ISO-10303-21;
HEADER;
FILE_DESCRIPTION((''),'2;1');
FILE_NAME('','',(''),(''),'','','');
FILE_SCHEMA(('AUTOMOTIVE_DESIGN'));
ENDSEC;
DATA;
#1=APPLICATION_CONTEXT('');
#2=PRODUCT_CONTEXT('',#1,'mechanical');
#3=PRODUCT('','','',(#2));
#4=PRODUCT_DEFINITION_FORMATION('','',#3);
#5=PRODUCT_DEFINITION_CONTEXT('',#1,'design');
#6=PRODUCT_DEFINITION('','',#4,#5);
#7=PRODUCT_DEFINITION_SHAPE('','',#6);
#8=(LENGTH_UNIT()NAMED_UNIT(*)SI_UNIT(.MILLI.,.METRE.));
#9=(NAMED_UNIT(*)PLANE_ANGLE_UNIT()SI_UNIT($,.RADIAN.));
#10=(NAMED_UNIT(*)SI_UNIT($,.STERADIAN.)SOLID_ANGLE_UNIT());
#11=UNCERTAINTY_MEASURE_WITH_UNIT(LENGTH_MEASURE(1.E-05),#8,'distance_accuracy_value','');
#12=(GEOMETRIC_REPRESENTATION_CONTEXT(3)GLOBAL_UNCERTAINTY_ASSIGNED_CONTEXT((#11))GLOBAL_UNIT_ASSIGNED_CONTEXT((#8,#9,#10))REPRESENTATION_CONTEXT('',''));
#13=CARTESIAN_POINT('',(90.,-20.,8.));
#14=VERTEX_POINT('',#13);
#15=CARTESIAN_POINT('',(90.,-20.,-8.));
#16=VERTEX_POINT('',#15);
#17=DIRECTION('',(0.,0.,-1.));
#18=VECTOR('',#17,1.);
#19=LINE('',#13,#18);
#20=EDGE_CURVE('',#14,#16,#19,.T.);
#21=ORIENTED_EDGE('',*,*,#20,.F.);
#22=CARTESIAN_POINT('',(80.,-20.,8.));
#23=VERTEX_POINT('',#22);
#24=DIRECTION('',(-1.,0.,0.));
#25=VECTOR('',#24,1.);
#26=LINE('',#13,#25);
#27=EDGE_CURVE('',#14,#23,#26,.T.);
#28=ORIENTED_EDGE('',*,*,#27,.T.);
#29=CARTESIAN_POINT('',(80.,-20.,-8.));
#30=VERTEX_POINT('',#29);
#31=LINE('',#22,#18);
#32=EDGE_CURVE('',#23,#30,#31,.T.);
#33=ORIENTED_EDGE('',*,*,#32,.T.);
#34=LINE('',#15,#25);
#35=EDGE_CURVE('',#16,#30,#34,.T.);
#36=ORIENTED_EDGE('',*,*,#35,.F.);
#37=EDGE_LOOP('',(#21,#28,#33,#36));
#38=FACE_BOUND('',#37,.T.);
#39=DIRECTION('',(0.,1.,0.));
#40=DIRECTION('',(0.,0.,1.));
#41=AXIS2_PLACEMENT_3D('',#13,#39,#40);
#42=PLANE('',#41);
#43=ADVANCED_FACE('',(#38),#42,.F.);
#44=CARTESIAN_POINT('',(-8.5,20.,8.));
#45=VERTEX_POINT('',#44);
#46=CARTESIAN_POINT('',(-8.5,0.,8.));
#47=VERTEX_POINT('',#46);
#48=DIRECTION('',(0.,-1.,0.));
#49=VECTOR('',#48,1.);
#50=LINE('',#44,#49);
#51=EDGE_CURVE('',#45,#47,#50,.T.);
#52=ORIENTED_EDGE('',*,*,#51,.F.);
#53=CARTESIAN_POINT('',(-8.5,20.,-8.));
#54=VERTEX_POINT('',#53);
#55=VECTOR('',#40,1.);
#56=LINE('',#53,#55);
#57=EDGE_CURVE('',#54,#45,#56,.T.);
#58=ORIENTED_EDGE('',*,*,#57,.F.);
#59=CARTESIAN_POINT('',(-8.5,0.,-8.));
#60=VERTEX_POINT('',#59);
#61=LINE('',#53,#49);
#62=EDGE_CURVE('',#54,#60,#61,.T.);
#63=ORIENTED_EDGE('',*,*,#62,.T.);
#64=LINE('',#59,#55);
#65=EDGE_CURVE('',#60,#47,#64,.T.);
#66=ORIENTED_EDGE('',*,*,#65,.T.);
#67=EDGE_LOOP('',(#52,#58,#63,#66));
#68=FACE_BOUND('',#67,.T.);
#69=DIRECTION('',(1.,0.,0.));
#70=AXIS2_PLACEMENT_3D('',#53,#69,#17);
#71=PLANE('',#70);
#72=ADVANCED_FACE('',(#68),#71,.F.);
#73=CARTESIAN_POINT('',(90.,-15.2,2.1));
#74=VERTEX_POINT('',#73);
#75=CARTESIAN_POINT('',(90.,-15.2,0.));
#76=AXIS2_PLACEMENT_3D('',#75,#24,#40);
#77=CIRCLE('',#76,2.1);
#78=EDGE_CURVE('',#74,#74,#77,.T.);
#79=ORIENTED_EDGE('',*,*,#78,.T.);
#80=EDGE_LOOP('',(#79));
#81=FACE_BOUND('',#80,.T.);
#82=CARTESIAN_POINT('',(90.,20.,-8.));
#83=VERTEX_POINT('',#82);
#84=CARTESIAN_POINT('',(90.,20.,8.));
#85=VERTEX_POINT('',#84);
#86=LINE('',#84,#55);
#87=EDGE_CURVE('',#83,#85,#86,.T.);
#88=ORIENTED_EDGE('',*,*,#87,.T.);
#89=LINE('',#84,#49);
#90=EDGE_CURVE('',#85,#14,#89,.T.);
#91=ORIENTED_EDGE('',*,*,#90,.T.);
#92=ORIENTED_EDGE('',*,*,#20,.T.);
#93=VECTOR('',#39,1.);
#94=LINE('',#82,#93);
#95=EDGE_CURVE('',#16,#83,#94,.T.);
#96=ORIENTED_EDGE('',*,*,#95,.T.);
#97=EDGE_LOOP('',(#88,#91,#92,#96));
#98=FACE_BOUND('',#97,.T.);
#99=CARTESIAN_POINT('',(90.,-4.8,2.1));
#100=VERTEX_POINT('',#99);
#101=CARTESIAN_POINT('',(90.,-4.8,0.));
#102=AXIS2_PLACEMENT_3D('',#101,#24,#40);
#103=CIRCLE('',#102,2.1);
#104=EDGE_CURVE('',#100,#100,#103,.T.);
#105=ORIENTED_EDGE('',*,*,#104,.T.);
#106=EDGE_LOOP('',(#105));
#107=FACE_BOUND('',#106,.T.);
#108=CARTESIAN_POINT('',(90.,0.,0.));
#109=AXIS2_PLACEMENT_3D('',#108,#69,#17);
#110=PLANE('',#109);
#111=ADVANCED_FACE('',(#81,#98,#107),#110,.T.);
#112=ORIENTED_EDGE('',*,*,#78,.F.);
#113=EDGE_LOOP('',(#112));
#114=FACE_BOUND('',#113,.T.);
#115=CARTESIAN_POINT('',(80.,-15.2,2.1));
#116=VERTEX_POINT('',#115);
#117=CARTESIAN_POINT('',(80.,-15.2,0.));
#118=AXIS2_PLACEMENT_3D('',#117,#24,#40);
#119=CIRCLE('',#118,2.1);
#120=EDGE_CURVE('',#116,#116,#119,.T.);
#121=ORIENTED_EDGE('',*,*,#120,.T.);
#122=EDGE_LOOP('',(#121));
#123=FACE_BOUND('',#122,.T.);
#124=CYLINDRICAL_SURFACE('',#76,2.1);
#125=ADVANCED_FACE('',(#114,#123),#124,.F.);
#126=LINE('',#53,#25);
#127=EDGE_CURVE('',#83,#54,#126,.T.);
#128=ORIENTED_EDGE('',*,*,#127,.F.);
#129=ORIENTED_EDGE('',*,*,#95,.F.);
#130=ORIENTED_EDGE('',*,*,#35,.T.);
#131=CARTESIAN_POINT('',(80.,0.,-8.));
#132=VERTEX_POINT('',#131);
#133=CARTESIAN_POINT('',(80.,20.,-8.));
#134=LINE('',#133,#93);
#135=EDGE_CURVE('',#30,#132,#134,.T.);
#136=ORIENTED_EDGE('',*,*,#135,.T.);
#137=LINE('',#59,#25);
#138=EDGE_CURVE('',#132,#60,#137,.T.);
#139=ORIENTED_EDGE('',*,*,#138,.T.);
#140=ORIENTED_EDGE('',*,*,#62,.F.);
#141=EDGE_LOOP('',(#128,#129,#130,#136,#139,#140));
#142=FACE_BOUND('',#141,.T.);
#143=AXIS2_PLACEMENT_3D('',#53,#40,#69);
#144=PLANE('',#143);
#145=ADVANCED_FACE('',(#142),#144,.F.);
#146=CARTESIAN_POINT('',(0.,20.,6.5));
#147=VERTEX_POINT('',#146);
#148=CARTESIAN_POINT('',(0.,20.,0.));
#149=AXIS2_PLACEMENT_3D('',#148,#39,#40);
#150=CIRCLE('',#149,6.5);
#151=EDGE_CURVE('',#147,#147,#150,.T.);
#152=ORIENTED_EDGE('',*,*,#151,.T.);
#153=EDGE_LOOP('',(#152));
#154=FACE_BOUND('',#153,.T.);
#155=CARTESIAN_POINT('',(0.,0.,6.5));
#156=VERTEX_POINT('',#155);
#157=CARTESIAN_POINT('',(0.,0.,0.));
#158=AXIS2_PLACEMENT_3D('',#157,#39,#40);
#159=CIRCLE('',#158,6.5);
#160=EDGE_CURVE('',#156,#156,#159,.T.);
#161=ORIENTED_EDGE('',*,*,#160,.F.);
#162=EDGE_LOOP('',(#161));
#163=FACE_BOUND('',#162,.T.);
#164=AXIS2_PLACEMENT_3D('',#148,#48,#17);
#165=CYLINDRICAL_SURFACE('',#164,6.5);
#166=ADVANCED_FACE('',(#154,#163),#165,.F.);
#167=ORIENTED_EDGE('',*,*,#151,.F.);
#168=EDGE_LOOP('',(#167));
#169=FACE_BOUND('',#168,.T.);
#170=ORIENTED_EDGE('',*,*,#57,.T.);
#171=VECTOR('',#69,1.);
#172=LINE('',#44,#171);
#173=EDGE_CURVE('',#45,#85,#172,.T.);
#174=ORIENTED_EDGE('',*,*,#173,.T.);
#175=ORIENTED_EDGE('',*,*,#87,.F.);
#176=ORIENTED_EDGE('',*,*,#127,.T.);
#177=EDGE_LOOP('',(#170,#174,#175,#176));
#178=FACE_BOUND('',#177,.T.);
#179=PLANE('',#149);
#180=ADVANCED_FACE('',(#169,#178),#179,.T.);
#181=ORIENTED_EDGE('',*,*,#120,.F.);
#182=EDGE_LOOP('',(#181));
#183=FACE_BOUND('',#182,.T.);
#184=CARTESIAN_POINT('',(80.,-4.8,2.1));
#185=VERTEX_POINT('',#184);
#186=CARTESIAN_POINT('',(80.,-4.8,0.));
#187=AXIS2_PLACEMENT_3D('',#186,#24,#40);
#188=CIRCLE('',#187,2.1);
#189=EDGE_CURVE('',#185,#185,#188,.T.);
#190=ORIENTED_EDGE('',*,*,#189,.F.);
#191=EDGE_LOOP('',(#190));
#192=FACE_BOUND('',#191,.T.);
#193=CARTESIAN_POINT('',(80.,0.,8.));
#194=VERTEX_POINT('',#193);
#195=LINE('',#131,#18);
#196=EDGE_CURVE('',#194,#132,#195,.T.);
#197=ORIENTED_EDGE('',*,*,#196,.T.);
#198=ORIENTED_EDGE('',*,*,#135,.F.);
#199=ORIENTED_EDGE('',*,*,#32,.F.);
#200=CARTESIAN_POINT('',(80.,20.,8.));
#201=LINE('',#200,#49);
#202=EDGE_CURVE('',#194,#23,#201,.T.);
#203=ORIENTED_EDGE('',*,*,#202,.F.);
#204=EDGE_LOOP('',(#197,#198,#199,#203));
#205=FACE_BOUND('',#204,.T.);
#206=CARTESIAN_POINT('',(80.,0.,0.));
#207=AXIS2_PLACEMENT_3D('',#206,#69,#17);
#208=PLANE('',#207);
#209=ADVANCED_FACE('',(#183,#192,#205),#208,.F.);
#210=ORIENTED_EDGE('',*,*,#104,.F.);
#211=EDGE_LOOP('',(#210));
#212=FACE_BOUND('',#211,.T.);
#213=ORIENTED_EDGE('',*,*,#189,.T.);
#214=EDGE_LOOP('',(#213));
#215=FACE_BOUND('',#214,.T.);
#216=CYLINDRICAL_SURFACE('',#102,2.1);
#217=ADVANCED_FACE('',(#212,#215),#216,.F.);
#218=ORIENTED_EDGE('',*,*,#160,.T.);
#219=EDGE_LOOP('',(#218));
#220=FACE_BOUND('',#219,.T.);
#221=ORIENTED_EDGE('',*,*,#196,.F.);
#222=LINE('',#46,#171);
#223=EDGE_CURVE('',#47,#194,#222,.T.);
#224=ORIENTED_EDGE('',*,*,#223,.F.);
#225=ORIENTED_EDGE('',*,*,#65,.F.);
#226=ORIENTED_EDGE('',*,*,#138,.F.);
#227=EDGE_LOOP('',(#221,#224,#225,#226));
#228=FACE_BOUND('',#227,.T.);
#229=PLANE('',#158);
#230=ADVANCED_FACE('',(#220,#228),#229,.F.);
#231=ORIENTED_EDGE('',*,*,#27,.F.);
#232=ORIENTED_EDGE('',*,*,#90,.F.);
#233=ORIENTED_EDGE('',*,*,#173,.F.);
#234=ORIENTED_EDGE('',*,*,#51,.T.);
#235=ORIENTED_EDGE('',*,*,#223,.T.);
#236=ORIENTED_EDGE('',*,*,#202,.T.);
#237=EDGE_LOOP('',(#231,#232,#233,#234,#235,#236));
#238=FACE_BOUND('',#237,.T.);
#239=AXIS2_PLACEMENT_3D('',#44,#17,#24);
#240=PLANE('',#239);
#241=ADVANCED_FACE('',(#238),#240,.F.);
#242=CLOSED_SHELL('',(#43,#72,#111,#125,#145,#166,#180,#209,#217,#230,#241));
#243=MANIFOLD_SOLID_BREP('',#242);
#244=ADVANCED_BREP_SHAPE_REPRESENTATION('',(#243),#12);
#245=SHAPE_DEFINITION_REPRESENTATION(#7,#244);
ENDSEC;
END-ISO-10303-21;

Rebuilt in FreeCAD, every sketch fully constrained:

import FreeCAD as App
import Part
import Sketcher
from FreeCAD import Vector
Q = App.Units.Quantity


def add_polygon(sketch, points):
    """Adds a closed chain of lines whose ends are joined by coincident constraints."""
    first, n = sketch.GeometryCount, len(points)
    for a, b in zip(points, points[1:] + points[:1]):
        sketch.addGeometry(Part.LineSegment(App.Vector(*a, 0), App.Vector(*b, 0)), False)
    for i in range(n):
        sketch.addConstraint(Sketcher.Constraint("Coincident", first + i, 2, first + (i + 1) % n, 1))

doc = App.newDocument("Part")
body = doc.addObject("PartDesign::Body", "Body")

# Sketch on XZ plane
sketch1 = doc.addObject("Sketcher::SketchObject", "Sketch")
body.addObject(sketch1)
sketch1.AttachmentSupport = (doc.XZ_Plane, [""])
sketch1.MapMode = "FlatFace"
add_polygon(sketch1, [(-8, -8), (-8, 8), (80, 8), (80, -8)])  # lines 0-3
sketch1.addGeometry(Part.Circle(Vector(0, 0, 0), Vector(0, 0, 1), 6), False)  # 4
sketch1.addConstraint([
    Sketcher.Constraint("Vertical", 0),
    Sketcher.Constraint("Horizontal", 1),
    Sketcher.Constraint("Vertical", 2),
    Sketcher.Constraint("Horizontal", 3),
    Sketcher.Constraint("Coincident", 4, 3, -1, 1),
    Sketcher.Constraint("Diameter", 4, Q("13 mm")),
    Sketcher.Constraint("DistanceY", 0, 1, 0, 2, Q("16 mm")),
    Sketcher.Constraint("DistanceX", 1, 1, 1, 2, Q("88.5 mm")),
    Sketcher.Constraint("DistanceY", -1, 1, 0, 2, Q("8 mm")),
    Sketcher.Constraint("DistanceX", -1, 1, 1, 2, Q("80 mm")),
])
pad1 = doc.addObject("PartDesign::Pad", "Pad")
body.addObject(pad1)
pad1.Profile = sketch1
pad1.Length = 20
pad1.Reversed = True

# Sketch on YZ plane
sketch2 = doc.addObject("Sketcher::SketchObject", "Sketch001")
body.addObject(sketch2)
sketch2.AttachmentSupport = (doc.YZ_Plane, [""])
sketch2.MapMode = "FlatFace"
sketch2.AttachmentOffset = App.Placement(Vector(0, 0, 80), App.Rotation())
add_polygon(sketch2, [(20, 8), (-20, 8), (-20, -8), (20, -8)])  # lines 0-3
sketch2.addConstraint([
    Sketcher.Constraint("Horizontal", 0),
    Sketcher.Constraint("Vertical", 1),
    Sketcher.Constraint("Horizontal", 2),
    Sketcher.Constraint("Vertical", 3),
    Sketcher.Constraint("Symmetric", 0, 2, 2, 2, -1, 1),
    Sketcher.Constraint("DistanceX", 0, 2, 0, 1, Q("40 mm")),
    Sketcher.Constraint("DistanceY", 1, 2, 1, 1, Q("16 mm")),
])
pad2 = doc.addObject("PartDesign::Pad", "Pad001")
body.addObject(pad2)
pad2.Profile = sketch2
pad2.Length = 10

# Sketch on YZ plane
sketch3 = doc.addObject("Sketcher::SketchObject", "Sketch002")
body.addObject(sketch3)
sketch3.AttachmentSupport = (doc.YZ_Plane, [""])
sketch3.MapMode = "FlatFace"
sketch3.AttachmentOffset = App.Placement(Vector(0, 0, 80), App.Rotation())
sketch3.addGeometry([
    Part.Circle(Vector(-4.8, 0, 0), Vector(0, 0, 1), 2.1),
    Part.Circle(Vector(-15.2, 0, 0), Vector(0, 0, 1), 2.1),
], False)
sketch3.addConstraint([
    Sketcher.Constraint("Equal", 0, 1),
    Sketcher.Constraint("PointOnObject", 0, 3, -1),
    Sketcher.Constraint("PointOnObject", 1, 3, -1),
    Sketcher.Constraint("Diameter", 0, Q("4.2 mm")),
    Sketcher.Constraint("DistanceX", 0, 3, -1, 1, Q("4.8 mm")),
    Sketcher.Constraint("DistanceX", 1, 3, -1, 1, Q("15.2 mm")),
])
pocket1 = doc.addObject("PartDesign::Pocket", "Pocket")
body.addObject(pocket1)
pocket1.Profile = sketch3
pocket1.Length = 10
pocket1.Reversed = True

doc.recompute()
